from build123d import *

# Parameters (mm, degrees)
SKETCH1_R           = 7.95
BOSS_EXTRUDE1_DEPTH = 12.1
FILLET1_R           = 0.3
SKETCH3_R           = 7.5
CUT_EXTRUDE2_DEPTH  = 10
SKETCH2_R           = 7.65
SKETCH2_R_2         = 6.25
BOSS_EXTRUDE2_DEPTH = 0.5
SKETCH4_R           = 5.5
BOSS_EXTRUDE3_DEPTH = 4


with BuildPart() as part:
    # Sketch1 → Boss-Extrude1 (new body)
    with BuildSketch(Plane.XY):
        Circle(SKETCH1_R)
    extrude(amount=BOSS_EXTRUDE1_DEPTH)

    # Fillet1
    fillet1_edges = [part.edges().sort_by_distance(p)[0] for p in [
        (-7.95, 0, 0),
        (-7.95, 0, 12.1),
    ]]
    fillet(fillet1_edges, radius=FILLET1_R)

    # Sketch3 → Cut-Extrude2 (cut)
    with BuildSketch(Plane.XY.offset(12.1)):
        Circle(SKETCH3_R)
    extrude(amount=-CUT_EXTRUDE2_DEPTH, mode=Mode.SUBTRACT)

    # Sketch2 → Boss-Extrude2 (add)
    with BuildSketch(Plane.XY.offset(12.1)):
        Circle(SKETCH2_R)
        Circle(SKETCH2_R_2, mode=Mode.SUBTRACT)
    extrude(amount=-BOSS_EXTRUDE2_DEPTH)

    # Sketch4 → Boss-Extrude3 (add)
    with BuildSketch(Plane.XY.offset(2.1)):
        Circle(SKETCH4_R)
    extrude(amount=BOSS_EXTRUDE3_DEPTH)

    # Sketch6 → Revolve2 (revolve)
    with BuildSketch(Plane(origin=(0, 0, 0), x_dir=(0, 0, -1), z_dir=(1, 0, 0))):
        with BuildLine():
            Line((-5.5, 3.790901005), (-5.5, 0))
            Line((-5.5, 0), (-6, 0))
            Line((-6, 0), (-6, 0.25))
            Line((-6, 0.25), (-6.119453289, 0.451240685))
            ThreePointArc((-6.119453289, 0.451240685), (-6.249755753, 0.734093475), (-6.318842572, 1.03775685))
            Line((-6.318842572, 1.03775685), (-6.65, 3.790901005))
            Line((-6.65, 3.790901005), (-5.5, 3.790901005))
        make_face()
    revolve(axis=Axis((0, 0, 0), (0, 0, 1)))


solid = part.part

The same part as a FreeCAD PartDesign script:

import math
import FreeCAD as App
import Part
import Sketcher
Q = App.Units.Quantity


def edges_at(feature, points):
    """Names of the edges that pass closest to the given points."""
    edges = feature.Shape.Edges
    near = lambda p: min(range(len(edges)), key=lambda i: edges[i].distToShape(Part.Vertex(*p))[0])
    return sorted({f"Edge{near(p) + 1}" for p in points})

doc = App.newDocument("Part")
body = doc.addObject("PartDesign::Body", "Body")

sketch1 = doc.addObject("Sketcher::SketchObject", "Sketch")
body.addObject(sketch1)
sketch1.AttachmentSupport = (doc.XY_Plane, [""])
sketch1.MapMode = "FlatFace"
sketch1.addGeometry(Part.Circle(App.Vector(0, 0, 0), App.Vector(0, 0, 1), 7.95), False)
sketch1.addConstraint([
    Sketcher.Constraint("Coincident", 0, 3, -1, 1),
    Sketcher.Constraint("Diameter", 0, Q("15.9 mm")),
])
pad1 = doc.addObject("PartDesign::Pad", "Pad")
body.addObject(pad1)
pad1.Profile = sketch1
pad1.Length = 12.1
doc.recompute()

fillet = doc.addObject("PartDesign::Fillet", "Fillet")
body.addObject(fillet)
fillet.Base = (pad1, edges_at(pad1, [(-7.95, 0, 0), (-7.95, 0, 12.1)]))
fillet.Radius = 0.3

sketch2 = doc.addObject("Sketcher::SketchObject", "Sketch001")
body.addObject(sketch2)
sketch2.AttachmentSupport = (doc.XY_Plane, [""])
sketch2.MapMode = "FlatFace"
sketch2.AttachmentOffset = App.Placement(App.Vector(0, 0, 12.1), App.Rotation())
sketch2.addGeometry(Part.Circle(App.Vector(0, 0, 0), App.Vector(0, 0, 1), 7.5), False)
sketch2.addConstraint([
    Sketcher.Constraint("Coincident", 0, 3, -1, 1),
    Sketcher.Constraint("Diameter", 0, Q("15 mm")),
])
pocket1 = doc.addObject("PartDesign::Pocket", "Pocket")
body.addObject(pocket1)
pocket1.Profile = sketch2
pocket1.Length = 10

sketch3 = doc.addObject("Sketcher::SketchObject", "Sketch002")
body.addObject(sketch3)
sketch3.AttachmentSupport = (doc.XY_Plane, [""])
sketch3.MapMode = "FlatFace"
sketch3.AttachmentOffset = App.Placement(App.Vector(0, 0, 12.1), App.Rotation())
sketch3.addGeometry([
    Part.Circle(App.Vector(0, 0, 0), App.Vector(0, 0, 1), 7.65),
    Part.Circle(App.Vector(0, 0, 0), App.Vector(0, 0, 1), 6.25),
], False)
sketch3.addConstraint([
    Sketcher.Constraint("Coincident", 0, 3, -1, 1),
    Sketcher.Constraint("Coincident", 1, 3, -1, 1),
    Sketcher.Constraint("Diameter", 0, Q("15.3 mm")),
    Sketcher.Constraint("Diameter", 1, Q("12.5 mm")),
])
pad2 = doc.addObject("PartDesign::Pad", "Pad001")
body.addObject(pad2)
pad2.Profile = sketch3
pad2.Length = 0.5
pad2.Reversed = True

sketch4 = doc.addObject("Sketcher::SketchObject", "Sketch003")
body.addObject(sketch4)
sketch4.AttachmentSupport = (doc.XY_Plane, [""])
sketch4.MapMode = "FlatFace"
sketch4.AttachmentOffset = App.Placement(App.Vector(0, 0, 2.1), App.Rotation())
sketch4.addGeometry(Part.Circle(App.Vector(0, 0, 0), App.Vector(0, 0, 1), 5.5), False)
sketch4.addConstraint([
    Sketcher.Constraint("Coincident", 0, 3, -1, 1),
    Sketcher.Constraint("Diameter", 0, Q("11 mm")),
])
pad3 = doc.addObject("PartDesign::Pad", "Pad002")
body.addObject(pad3)
pad3.Profile = sketch4
pad3.Length = 4

sketch5 = doc.addObject("Sketcher::SketchObject", "Sketch004")
body.addObject(sketch5)
sketch5.AttachmentSupport = (doc.YZ_Plane, [""])
sketch5.MapMode = "FlatFace"
sketch5.addGeometry([
    Part.LineSegment(App.Vector(0, 5.5, 0), App.Vector(3.790901, 5.5, 0)),
    Part.LineSegment(App.Vector(3.790901, 5.5, 0), App.Vector(3.790901, 6.65, 0)),
    Part.LineSegment(App.Vector(3.790901, 6.65, 0), App.Vector(1.037757, 6.318843, 0)),
    Part.ArcOfCircle(Part.Circle(App.Vector(1.216891, 4.829577, 0), App.Vector(0, 0, 1), 1.5), math.radians(96.858778), math.radians(120.692698)),
    Part.LineSegment(App.Vector(0.451241, 6.119453, 0), App.Vector(0.25, 6, 0)),
    Part.LineSegment(App.Vector(0.25, 6, 0), App.Vector(0, 6, 0)),
    Part.LineSegment(App.Vector(0, 6, 0), App.Vector(0, 5.5, 0)),
], False)
sketch5.addConstraint([
    Sketcher.Constraint("Coincident", 0, 2, 1, 1),
    Sketcher.Constraint("Coincident", 1, 2, 2, 1),
    Sketcher.Constraint("Tangent", 2, 2, 3, 1),
    Sketcher.Constraint("Tangent", 3, 2, 4, 1),
    Sketcher.Constraint("Coincident", 4, 2, 5, 1),
    Sketcher.Constraint("Coincident", 5, 2, 6, 1),
    Sketcher.Constraint("Coincident", 6, 2, 0, 1),
    Sketcher.Constraint("Horizontal", 0),
    Sketcher.Constraint("Vertical", 1),
    Sketcher.Constraint("Horizontal", 5),
    Sketcher.Constraint("Vertical", 6),
    Sketcher.Constraint("PointOnObject", 5, 2, -2),
    Sketcher.Constraint("Radius", 3, Q("1.5 mm")),
    Sketcher.Constraint("DistanceY", 6, 2, 6, 1, Q("0.5 mm")),
    Sketcher.Constraint("DistanceY", -1, 1, 4, 2, Q("6 mm")),
    Sketcher.Constraint("DistanceX", 5, 2, 5, 1, Q("0.25 mm")),
    Sketcher.Constraint("DistanceY", 1, 1, 1, 2, Q("1.15 mm")),
    Sketcher.Constraint("DistanceX", 0, 1, 0, 2, Q("3.790901 mm")),
    Sketcher.Constraint("Distance", 2, Q("2.772989 mm")),
    Sketcher.Constraint("DistanceX", -1, 1, 3, 3, Q("1.216891 mm")),
])
revolution = doc.addObject("PartDesign::Revolution", "Revolution")
body.addObject(revolution)
revolution.Profile = sketch5
revolution.ReferenceAxis = (sketch5, ["V_Axis"])
revolution.Angle = 360

doc.recompute()
